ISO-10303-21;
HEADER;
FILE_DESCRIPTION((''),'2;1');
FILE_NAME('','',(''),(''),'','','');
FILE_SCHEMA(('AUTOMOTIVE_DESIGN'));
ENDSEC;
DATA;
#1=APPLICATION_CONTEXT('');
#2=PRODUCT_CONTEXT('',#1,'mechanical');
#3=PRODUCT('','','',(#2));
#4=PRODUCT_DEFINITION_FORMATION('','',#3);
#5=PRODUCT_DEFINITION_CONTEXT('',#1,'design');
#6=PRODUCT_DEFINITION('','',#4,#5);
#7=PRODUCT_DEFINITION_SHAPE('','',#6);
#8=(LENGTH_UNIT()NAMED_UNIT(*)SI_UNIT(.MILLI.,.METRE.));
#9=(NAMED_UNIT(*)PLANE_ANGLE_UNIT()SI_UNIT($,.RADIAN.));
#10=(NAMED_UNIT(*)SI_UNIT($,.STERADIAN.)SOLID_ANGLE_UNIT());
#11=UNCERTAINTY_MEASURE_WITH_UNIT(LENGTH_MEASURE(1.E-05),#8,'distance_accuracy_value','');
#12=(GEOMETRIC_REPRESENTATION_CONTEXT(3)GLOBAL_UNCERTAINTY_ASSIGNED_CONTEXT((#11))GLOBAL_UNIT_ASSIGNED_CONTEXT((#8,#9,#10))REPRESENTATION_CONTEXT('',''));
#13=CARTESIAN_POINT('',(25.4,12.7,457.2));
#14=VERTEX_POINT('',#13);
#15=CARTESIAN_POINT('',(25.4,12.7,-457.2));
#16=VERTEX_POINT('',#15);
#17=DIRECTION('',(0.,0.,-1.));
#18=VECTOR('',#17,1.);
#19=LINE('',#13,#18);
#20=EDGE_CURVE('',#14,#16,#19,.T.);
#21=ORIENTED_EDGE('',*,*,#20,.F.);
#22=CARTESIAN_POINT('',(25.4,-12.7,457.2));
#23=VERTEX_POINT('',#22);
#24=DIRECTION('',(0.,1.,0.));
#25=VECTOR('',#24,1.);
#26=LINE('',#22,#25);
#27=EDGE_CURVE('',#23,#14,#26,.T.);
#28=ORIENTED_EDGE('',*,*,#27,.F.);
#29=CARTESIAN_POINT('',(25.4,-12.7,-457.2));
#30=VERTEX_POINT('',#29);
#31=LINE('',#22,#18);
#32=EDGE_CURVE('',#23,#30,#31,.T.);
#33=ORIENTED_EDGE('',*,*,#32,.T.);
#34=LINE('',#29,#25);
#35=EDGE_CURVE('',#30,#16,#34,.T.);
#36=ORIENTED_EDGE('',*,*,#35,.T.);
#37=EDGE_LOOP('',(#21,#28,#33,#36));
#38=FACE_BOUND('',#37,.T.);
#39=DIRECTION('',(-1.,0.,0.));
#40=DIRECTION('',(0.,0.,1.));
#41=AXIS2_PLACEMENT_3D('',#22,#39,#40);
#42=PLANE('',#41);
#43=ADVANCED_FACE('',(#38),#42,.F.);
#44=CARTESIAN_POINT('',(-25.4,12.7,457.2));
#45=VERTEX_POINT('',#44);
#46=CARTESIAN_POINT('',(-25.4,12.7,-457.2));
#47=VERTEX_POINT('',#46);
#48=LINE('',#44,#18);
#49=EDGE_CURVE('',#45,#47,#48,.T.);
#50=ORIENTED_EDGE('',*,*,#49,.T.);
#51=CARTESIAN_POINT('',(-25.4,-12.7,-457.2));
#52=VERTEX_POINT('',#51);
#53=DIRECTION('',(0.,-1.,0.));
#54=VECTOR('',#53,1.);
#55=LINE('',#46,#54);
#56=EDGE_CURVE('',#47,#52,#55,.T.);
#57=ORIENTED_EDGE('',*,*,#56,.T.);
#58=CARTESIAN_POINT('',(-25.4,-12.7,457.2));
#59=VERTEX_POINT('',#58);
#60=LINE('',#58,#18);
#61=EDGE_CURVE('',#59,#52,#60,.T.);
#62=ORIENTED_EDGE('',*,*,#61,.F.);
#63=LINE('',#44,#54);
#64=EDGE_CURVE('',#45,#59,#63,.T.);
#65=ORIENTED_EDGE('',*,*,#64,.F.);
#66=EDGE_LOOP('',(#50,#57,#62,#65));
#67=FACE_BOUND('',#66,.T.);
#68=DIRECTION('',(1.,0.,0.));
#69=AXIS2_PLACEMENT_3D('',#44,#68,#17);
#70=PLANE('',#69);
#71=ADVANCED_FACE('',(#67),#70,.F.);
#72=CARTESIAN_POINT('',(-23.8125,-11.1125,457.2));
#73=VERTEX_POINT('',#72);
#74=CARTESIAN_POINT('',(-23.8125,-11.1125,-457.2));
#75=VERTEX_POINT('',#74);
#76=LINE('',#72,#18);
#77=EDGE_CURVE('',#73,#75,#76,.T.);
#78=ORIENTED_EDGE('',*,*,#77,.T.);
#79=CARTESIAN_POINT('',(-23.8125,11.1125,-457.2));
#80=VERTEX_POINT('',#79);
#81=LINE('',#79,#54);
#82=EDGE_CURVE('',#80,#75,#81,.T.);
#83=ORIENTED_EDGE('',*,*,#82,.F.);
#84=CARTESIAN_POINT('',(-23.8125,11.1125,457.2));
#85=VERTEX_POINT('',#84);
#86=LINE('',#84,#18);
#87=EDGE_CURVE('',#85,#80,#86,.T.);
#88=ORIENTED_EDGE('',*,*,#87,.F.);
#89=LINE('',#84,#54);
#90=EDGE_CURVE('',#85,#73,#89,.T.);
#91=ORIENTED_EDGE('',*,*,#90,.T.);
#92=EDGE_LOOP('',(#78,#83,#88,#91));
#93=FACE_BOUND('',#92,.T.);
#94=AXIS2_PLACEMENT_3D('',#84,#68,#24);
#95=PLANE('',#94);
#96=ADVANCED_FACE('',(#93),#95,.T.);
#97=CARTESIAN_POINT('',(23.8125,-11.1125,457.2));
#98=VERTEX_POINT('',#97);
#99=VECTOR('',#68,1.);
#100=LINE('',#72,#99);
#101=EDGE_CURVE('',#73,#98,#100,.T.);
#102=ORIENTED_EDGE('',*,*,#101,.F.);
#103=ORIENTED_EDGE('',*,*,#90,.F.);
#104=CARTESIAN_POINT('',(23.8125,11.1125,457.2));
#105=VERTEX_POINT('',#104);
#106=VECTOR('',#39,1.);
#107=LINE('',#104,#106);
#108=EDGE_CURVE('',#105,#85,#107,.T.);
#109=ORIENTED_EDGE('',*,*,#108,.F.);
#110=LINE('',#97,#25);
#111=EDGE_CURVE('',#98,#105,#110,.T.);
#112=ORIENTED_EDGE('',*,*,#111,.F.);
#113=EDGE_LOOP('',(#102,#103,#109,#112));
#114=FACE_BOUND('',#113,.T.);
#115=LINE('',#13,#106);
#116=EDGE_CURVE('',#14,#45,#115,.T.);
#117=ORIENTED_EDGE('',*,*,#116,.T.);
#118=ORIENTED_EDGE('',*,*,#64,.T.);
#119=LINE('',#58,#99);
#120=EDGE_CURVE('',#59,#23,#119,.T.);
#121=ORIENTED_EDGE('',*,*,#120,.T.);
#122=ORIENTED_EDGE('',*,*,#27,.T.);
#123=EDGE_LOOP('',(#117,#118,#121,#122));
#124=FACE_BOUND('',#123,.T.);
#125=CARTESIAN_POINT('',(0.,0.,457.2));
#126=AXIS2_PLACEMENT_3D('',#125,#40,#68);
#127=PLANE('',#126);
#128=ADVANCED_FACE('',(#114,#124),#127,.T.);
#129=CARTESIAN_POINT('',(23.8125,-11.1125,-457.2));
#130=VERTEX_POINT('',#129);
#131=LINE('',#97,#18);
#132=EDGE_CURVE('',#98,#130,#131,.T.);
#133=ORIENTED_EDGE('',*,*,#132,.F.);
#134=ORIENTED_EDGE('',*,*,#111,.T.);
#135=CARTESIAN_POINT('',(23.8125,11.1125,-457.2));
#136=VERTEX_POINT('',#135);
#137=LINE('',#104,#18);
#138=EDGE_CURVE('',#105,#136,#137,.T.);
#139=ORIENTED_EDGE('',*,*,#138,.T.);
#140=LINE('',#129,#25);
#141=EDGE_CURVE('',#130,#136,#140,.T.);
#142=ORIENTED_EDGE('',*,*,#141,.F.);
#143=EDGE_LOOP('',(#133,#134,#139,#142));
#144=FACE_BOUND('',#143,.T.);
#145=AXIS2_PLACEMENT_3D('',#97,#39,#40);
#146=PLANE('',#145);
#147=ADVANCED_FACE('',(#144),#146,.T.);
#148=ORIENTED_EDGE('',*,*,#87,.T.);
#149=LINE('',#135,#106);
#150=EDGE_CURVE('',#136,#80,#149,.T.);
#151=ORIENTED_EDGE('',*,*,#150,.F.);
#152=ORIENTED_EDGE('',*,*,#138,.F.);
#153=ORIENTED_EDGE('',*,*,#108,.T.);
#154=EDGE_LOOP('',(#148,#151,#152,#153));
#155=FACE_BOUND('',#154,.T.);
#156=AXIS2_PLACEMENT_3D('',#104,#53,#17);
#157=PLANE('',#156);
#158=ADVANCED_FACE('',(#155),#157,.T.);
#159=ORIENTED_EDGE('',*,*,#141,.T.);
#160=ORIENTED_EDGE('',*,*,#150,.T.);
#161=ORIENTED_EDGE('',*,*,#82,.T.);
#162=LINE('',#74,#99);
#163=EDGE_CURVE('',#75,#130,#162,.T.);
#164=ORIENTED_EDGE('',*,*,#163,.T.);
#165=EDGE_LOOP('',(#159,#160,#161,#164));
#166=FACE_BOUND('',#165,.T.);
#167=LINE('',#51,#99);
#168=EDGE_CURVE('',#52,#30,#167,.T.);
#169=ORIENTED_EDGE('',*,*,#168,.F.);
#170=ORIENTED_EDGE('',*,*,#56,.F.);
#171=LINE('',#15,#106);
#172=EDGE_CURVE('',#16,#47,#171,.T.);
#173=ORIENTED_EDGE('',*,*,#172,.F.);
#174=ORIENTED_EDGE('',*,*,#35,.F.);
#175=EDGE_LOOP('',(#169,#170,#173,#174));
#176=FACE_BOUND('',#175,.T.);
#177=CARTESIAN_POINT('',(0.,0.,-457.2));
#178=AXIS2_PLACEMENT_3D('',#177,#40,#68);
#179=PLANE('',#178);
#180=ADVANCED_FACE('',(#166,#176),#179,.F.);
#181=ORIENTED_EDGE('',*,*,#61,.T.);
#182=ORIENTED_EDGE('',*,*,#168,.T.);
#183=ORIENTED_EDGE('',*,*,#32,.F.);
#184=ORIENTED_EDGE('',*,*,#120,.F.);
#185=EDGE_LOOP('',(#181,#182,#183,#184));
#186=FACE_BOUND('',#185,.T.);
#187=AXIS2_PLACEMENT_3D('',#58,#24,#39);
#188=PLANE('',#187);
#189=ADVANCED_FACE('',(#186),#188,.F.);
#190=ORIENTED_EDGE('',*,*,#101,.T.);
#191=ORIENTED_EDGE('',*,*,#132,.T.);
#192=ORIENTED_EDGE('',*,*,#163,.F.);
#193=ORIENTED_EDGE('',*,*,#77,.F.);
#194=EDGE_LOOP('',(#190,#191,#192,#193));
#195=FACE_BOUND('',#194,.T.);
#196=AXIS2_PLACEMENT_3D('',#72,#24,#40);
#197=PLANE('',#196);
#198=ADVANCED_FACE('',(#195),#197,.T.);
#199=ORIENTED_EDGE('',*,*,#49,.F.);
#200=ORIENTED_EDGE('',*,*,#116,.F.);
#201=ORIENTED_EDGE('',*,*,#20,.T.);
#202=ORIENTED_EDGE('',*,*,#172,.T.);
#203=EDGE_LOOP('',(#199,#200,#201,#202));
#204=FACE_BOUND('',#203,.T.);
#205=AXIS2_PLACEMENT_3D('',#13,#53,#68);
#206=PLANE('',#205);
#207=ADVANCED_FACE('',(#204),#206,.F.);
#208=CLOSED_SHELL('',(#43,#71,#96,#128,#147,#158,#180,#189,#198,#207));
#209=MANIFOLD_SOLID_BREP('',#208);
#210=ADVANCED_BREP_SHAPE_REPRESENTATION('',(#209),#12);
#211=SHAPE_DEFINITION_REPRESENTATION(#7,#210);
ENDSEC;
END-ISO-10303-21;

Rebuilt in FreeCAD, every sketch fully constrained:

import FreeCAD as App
import Part
import Sketcher
from FreeCAD import Vector
Q = App.Units.Quantity


def add_polygon(sketch, points):
    """Adds a closed chain of lines whose ends are joined by coincident constraints."""
    first, n = sketch.GeometryCount, len(points)
    for a, b in zip(points, points[1:] + points[:1]):
        sketch.addGeometry(Part.LineSegment(App.Vector(*a, 0), App.Vector(*b, 0)), False)
    for i in range(n):
        sketch.addConstraint(Sketcher.Constraint("Coincident", first + i, 2, first + (i + 1) % n, 1))

doc = App.newDocument("Part")
body = doc.addObject("PartDesign::Body", "Body")

# Sketch on XY plane
sketch1 = doc.addObject("Sketcher::SketchObject", "Sketch")
body.addObject(sketch1)
sketch1.AttachmentSupport = (doc.XY_Plane, [""])
sketch1.MapMode = "FlatFace"
add_polygon(sketch1, [(-25.4, 12.7), (-25.4, -12.7), (25.4, -12.7), (25.4, 12.7)])  # lines 0-3
add_polygon(sketch1, [(23.8125, -11.1125), (-23.8125, -11.1125), (-23.8125, 11.1125), (23.8125, 11.1125)])  # lines 4-7
sketch1.addConstraint([
    Sketcher.Constraint("Vertical", 0),
    Sketcher.Constraint("Horizontal", 1),
    Sketcher.Constraint("Vertical", 2),
    Sketcher.Constraint("Horizontal", 3),
    Sketcher.Constraint("Horizontal", 4),
    Sketcher.Constraint("Vertical", 5),
    Sketcher.Constraint("Horizontal", 6),
    Sketcher.Constraint("Vertical", 7),
    Sketcher.Constraint("Symmetric", 0, 2, 2, 2, -1, 1),
    Sketcher.Constraint("Symmetric", 4, 2, 6, 2, -1, 1),
    Sketcher.Constraint("DistanceX", 1, 1, 1, 2, Q("2 in")),
    Sketcher.Constraint("DistanceY", 0, 2, 0, 1, Q("1 in")),
    Sketcher.Constraint("DistanceX", 4, 2, 4, 1, Q("1.875 in")),
    Sketcher.Constraint("DistanceY", 5, 1, 5, 2, Q("0.875 in")),
])
pad1 = doc.addObject("PartDesign::Pad", "Pad")
body.addObject(pad1)
pad1.Profile = sketch1
pad1.Type = "TwoLengths"
pad1.Length = Q("18 in")
pad1.Length2 = Q("18 in")

doc.recompute()
